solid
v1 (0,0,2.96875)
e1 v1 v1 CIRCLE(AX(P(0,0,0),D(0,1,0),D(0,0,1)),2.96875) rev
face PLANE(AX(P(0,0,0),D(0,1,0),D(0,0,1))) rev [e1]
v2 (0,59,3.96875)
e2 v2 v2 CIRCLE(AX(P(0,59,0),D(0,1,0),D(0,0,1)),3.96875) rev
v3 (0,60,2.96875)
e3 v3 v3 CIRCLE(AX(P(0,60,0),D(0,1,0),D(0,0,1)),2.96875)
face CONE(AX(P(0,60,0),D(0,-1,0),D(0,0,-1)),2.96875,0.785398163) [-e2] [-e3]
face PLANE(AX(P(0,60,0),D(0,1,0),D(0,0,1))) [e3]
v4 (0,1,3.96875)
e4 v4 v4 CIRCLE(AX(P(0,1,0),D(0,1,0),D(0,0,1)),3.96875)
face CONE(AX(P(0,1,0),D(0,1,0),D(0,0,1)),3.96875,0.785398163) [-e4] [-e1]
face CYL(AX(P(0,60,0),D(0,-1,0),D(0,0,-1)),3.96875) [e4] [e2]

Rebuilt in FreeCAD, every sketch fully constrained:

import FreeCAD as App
import Part
import Sketcher

V = App.Vector


def edges_at(feature, points):
    """Names of the edges that pass closest to the given points."""
    edges = feature.Shape.Edges
    near = lambda p: min(range(len(edges)), key=lambda i: edges[i].distToShape(Part.Vertex(*p))[0])
    return sorted({f"Edge{near(p) + 1}" for p in points})

doc = App.newDocument("Part")
body = doc.addObject("PartDesign::Body", "Body")

sketch1 = body.newObject("Sketcher::SketchObject", "Sketch")
sketch1.AttachmentSupport = (doc.getObject("XZ_Plane"), [""])
sketch1.MapMode = "FlatFace"
sketch1.addGeometry(Part.Circle(V(0, 0, 0), V(0, 0, 1), 4), False)
sketch1.addConstraint([
    Sketcher.Constraint("Coincident", 0, 3, -1, 1),
    Sketcher.Constraint("Diameter", 0, 7.9375),
])
pad1 = body.newObject("PartDesign::Pad", "Pad")
pad1.Profile = sketch1
pad1.Length = 60
pad1.Reversed = True
doc.recompute()

chamfer = body.newObject("PartDesign::Chamfer", "Chamfer")
chamfer.Base = (pad1, edges_at(pad1, [(-3.969, 0, 0), (-3.969, 60, 0)]))
chamfer.Size = 1

doc.recompute()
